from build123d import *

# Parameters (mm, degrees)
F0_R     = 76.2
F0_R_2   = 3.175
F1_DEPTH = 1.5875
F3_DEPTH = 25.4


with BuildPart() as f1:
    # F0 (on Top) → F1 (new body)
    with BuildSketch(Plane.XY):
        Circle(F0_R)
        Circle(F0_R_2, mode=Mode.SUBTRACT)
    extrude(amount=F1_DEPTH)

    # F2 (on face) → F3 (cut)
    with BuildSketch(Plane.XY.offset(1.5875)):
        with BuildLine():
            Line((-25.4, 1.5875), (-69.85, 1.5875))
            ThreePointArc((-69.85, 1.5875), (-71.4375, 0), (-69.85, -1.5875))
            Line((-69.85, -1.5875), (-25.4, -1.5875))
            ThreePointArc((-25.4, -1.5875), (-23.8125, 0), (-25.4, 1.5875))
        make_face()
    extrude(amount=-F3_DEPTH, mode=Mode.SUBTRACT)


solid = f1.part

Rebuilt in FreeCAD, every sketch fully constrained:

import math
import FreeCAD as App
import Part
import Sketcher

V = App.Vector
Q = App.Units.Quantity

doc = App.newDocument("Part")
body = doc.addObject("PartDesign::Body", "Body")

sketch1 = body.newObject("Sketcher::SketchObject", "Sketch")
sketch1.AttachmentSupport = (doc.getObject("XY_Plane"), [""])
sketch1.MapMode = "FlatFace"
sketch1.addGeometry([
    Part.Circle(V(0, 0, 0), V(0, 0, 1), 76.2),
    Part.Circle(V(0, 0, 0), V(0, 0, 1), 3.2),
], False)
sketch1.addConstraint([
    Sketcher.Constraint("Coincident", 0, 3, -1, 1),
    Sketcher.Constraint("Coincident", 1, 3, -1, 1),
    Sketcher.Constraint("Diameter", 0, Q("6 in")),
    Sketcher.Constraint("Diameter", 1, Q("0.25 in")),
])
pad1 = body.newObject("PartDesign::Pad", "Pad")
pad1.Profile = sketch1
pad1.Length = Q("0.0625 in")

sketch2 = body.newObject("Sketcher::SketchObject", "Sketch001")
sketch2.AttachmentSupport = (doc.getObject("XY_Plane"), [""])
sketch2.MapMode = "FlatFace"
sketch2.AttachmentOffset = App.Placement(V(0, 0, 0.0625 * 25.4), App.Rotation())
sketch2.addGeometry([
    Part.LineSegment(V(-25.4, 1.6, 0), V(-69.8, 1.6, 0)),
    Part.ArcOfCircle(Part.Circle(V(-69.8, 0, 0), V(0, 0, 1), 1.6), math.radians(90), math.radians(270)),
    Part.LineSegment(V(-69.8, -1.6, 0), V(-25.4, -1.6, 0)),
    Part.ArcOfCircle(Part.Circle(V(-25.4, 0, 0), V(0, 0, 1), 1.6), math.radians(-90), math.radians(90)),
], False)
sketch2.addConstraint([
    Sketcher.Constraint("Tangent", 0, 2, 1, 1),
    Sketcher.Constraint("Tangent", 1, 2, 2, 1),
    Sketcher.Constraint("Tangent", 2, 2, 3, 1),
    Sketcher.Constraint("Tangent", 3, 2, 0, 1),
    Sketcher.Constraint("Horizontal", 0),
    Sketcher.Constraint("Horizontal", 2),
    Sketcher.Constraint("PointOnObject", 1, 3, -1),
    Sketcher.Constraint("DistanceX", 3, 3, -1, 1, Q("1 in")),
    Sketcher.Constraint("Radius", 1, Q("0.0625 in")),
    Sketcher.Constraint("DistanceX", 0, 2, 0, 1, Q("1.75 in")),
])
pocket1 = body.newObject("PartDesign::Pocket", "Pocket")
pocket1.Profile = sketch2
pocket1.Length = Q("1 in")

doc.recompute()
